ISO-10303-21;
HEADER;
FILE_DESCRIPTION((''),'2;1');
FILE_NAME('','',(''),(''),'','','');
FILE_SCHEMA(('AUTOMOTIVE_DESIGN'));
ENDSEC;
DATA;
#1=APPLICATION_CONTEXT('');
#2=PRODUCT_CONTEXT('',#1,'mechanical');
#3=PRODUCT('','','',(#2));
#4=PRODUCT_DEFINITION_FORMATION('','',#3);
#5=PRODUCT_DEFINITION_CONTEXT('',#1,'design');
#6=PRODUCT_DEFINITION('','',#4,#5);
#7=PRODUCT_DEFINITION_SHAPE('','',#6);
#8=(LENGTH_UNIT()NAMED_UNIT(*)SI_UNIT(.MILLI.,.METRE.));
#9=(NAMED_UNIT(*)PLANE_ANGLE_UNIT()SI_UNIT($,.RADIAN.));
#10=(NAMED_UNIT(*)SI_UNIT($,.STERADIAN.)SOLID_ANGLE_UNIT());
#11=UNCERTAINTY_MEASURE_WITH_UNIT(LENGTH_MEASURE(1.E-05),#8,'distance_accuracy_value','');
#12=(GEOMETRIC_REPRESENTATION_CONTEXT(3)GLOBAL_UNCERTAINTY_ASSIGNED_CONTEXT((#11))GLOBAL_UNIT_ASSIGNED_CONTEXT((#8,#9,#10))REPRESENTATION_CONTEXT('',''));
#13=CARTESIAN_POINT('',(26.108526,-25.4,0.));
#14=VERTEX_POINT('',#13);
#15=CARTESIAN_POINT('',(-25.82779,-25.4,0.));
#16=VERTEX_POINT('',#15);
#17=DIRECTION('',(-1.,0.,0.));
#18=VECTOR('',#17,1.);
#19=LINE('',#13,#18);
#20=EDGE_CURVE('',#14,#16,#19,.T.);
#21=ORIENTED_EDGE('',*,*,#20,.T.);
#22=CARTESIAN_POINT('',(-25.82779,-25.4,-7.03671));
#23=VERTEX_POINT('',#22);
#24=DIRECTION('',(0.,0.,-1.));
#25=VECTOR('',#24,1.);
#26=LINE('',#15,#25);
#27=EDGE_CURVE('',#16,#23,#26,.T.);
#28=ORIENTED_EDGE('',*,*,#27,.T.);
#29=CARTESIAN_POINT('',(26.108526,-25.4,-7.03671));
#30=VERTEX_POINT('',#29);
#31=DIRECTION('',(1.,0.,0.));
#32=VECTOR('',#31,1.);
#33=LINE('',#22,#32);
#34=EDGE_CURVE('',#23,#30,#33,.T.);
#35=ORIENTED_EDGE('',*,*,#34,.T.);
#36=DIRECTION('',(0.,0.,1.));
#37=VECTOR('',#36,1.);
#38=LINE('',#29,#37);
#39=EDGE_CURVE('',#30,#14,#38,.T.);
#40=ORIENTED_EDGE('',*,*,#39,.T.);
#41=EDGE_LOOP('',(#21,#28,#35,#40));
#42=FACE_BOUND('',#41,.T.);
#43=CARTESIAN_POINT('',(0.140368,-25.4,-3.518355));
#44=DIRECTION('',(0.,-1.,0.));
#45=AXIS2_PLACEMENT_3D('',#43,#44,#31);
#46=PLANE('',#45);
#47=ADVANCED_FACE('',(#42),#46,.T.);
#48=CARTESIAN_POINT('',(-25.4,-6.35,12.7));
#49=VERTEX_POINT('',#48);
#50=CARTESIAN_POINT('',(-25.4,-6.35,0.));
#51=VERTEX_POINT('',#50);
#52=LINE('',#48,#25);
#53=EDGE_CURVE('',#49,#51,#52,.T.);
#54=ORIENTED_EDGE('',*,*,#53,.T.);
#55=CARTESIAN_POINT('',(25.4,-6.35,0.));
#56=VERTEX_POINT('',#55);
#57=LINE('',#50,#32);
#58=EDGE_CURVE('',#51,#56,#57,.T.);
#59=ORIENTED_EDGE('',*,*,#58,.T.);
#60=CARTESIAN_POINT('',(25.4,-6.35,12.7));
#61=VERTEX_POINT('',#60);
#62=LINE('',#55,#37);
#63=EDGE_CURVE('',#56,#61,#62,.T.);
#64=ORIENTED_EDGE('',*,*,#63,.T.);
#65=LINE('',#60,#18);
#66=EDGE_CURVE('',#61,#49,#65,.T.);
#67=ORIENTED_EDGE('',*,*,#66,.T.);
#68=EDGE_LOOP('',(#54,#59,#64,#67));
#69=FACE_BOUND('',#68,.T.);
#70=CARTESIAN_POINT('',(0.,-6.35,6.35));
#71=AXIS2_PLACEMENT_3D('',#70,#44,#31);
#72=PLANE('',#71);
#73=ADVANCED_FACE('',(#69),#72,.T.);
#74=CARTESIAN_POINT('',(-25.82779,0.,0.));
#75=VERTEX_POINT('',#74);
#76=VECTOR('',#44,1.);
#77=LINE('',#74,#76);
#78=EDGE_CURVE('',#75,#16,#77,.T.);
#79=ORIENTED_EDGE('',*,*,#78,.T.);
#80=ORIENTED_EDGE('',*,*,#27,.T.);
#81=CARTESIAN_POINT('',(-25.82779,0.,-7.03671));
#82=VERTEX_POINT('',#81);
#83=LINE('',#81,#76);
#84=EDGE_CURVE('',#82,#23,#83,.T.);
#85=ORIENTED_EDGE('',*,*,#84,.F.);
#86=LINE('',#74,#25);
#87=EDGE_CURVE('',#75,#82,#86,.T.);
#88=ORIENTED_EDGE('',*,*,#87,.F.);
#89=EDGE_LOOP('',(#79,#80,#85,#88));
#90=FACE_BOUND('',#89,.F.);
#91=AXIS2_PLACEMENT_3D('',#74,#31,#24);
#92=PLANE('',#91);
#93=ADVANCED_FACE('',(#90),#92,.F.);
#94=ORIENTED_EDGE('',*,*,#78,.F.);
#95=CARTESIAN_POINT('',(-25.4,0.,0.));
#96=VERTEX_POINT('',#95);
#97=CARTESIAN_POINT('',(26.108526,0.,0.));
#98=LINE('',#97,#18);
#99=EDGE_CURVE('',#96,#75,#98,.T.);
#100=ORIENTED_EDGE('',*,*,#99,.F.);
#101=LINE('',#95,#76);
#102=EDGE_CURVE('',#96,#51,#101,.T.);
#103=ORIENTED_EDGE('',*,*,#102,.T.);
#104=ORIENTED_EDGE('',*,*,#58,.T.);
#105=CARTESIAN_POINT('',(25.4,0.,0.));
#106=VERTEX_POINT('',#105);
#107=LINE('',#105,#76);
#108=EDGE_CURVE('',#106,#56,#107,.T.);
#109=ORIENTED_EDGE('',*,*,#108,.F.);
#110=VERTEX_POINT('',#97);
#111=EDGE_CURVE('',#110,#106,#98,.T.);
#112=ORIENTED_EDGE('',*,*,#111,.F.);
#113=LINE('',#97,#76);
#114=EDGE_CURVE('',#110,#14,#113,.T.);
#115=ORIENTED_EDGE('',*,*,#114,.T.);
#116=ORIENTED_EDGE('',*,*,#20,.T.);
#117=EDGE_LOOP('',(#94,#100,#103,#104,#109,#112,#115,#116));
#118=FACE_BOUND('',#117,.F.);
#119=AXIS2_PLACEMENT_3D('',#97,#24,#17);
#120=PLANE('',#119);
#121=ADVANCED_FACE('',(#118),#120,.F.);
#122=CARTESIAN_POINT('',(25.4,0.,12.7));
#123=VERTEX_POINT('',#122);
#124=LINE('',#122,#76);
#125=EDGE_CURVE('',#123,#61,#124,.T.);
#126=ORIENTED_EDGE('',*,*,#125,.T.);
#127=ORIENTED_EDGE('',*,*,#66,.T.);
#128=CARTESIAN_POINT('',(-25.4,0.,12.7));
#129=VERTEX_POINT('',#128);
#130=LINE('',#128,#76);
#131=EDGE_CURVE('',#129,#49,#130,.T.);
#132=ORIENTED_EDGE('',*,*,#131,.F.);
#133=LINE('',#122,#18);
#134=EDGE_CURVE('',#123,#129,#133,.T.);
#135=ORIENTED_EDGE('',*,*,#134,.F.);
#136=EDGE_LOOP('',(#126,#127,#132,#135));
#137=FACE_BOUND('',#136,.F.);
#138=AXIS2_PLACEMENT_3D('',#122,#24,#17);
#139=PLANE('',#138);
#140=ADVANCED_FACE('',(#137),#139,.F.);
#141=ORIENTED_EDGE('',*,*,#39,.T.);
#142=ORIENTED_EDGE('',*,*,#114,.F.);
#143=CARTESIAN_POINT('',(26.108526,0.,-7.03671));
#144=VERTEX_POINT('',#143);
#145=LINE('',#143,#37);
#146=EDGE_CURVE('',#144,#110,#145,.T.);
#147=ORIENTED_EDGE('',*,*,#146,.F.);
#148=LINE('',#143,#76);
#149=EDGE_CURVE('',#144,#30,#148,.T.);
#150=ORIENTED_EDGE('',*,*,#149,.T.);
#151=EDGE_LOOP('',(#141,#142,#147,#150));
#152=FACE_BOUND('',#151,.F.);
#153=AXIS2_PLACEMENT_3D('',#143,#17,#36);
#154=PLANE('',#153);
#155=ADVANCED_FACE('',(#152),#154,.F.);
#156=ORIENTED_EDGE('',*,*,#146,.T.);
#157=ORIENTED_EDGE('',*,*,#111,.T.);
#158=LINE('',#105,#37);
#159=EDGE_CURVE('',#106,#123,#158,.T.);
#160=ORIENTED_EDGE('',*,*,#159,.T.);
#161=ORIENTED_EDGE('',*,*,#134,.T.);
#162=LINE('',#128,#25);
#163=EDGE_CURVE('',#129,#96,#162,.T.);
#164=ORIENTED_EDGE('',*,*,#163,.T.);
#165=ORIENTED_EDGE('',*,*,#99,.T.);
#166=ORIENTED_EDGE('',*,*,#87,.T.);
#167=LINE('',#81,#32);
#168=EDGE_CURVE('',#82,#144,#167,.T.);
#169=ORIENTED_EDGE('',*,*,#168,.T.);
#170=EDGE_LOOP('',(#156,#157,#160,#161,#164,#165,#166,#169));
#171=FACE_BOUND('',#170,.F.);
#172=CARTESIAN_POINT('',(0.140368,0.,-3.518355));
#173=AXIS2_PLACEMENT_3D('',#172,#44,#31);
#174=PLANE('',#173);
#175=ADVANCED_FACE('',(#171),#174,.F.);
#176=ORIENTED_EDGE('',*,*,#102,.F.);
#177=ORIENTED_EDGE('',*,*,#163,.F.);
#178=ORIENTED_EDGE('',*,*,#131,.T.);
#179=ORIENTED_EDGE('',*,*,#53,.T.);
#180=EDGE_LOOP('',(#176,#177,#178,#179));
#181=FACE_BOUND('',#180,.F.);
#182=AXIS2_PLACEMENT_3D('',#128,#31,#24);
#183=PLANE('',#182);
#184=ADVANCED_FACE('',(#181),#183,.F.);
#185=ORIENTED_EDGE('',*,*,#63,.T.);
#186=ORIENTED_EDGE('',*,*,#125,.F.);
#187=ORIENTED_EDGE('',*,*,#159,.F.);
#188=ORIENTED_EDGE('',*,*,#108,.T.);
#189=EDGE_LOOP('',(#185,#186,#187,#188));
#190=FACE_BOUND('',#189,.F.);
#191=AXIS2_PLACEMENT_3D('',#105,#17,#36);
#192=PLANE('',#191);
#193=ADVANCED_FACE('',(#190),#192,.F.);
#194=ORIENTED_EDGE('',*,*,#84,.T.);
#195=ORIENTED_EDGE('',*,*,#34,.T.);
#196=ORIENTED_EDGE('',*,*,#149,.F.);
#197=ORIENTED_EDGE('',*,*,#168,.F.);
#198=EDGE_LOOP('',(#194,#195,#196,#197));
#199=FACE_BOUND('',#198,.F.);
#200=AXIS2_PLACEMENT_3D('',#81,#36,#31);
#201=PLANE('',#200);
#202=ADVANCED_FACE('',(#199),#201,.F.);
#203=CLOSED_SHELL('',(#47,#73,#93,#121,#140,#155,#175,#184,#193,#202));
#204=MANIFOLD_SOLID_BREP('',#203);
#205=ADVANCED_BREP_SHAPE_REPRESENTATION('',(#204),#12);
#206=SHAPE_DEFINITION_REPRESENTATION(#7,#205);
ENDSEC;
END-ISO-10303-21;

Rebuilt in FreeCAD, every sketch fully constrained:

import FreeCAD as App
import Part
import Sketcher
from FreeCAD import Vector
Q = App.Units.Quantity


def add_polygon(sketch, points):
    """Adds a closed chain of lines whose ends are joined by coincident constraints."""
    first, n = sketch.GeometryCount, len(points)
    for a, b in zip(points, points[1:] + points[:1]):
        sketch.addGeometry(Part.LineSegment(App.Vector(*a, 0), App.Vector(*b, 0)), False)
    for i in range(n):
        sketch.addConstraint(Sketcher.Constraint("Coincident", first + i, 2, first + (i + 1) % n, 1))

doc = App.newDocument("Part")
body = doc.addObject("PartDesign::Body", "Body")

sketch1 = body.newObject("Sketcher::SketchObject", "Sketch")
sketch1.AttachmentSupport = (doc.getObject("XZ_Plane"), [""])
sketch1.MapMode = "FlatFace"
add_polygon(sketch1, [(-25, 0), (25, 0), (25, 13), (-25, 13)])
sketch1.addConstraint(Sketcher.Constraint("Horizontal", 0))
sketch1.addConstraint(Sketcher.Constraint("Vertical", 1))
sketch1.addConstraint(Sketcher.Constraint("Horizontal", 2))
sketch1.addConstraint(Sketcher.Constraint("Vertical", 3))
sketch1.addConstraint(Sketcher.Constraint("Symmetric", 0, 2, 3, 2, -1, 1))
sketch1.addConstraint(Sketcher.Constraint("DistanceX", 0, 1, 0, 2, Q("2 in")))
sketch1.addConstraint(Sketcher.Constraint("DistanceY", 1, 1, 1, 2, Q("0.5 in")))
pad1 = body.newObject("PartDesign::Pad", "Pad")
pad1.Profile = sketch1
pad1.Length = Q("0.25 in")

sketch2 = body.newObject("Sketcher::SketchObject", "Sketch001")
sketch2.AttachmentSupport = (doc.getObject("XZ_Plane"), [""])
sketch2.MapMode = "FlatFace"
add_polygon(sketch2, [(26, -7), (26, 0), (-26, 0), (-26, -7)])
sketch2.addConstraint(Sketcher.Constraint("Vertical", 0))
sketch2.addConstraint(Sketcher.Constraint("Horizontal", 1))
sketch2.addConstraint(Sketcher.Constraint("Vertical", 2))
sketch2.addConstraint(Sketcher.Constraint("Horizontal", 3))
sketch2.addConstraint(Sketcher.Constraint("PointOnObject", 0, 2, -1))
sketch2.addConstraint(Sketcher.Constraint("DistanceY", 0, 1, 0, 2, 7.03671))
sketch2.addConstraint(Sketcher.Constraint("DistanceX", 1, 2, 1, 1, 51.936316))
sketch2.addConstraint(Sketcher.Constraint("DistanceX", 1, 2, -1, 1, 25.82779))
pad2 = body.newObject("PartDesign::Pad", "Pad001")
pad2.Profile = sketch2
pad2.Length = Q("1 in")

sketch3 = body.newObject("Sketcher::SketchObject", "Sketch002")
sketch3.AttachmentSupport = (doc.getObject("XZ_Plane"), [""])
sketch3.MapMode = "FlatFace"
add_polygon(sketch3, [(26, -7), (26, 0), (-26, 0), (-26, -7)])
sketch3.addConstraint(Sketcher.Constraint("Vertical", 0))
sketch3.addConstraint(Sketcher.Constraint("Horizontal", 1))
sketch3.addConstraint(Sketcher.Constraint("Vertical", 2))
sketch3.addConstraint(Sketcher.Constraint("Horizontal", 3))
sketch3.addConstraint(Sketcher.Constraint("PointOnObject", 0, 2, -1))
sketch3.addConstraint(Sketcher.Constraint("DistanceY", 0, 1, 0, 2, 7.03671))
sketch3.addConstraint(Sketcher.Constraint("DistanceX", 1, 2, 1, 1, 51.936316))
sketch3.addConstraint(Sketcher.Constraint("DistanceX", 1, 2, -1, 1, 25.82779))
pad3 = body.newObject("PartDesign::Pad", "Pad002")
pad3.Profile = sketch3
pad3.Length = Q("1 in")

doc.recompute()
